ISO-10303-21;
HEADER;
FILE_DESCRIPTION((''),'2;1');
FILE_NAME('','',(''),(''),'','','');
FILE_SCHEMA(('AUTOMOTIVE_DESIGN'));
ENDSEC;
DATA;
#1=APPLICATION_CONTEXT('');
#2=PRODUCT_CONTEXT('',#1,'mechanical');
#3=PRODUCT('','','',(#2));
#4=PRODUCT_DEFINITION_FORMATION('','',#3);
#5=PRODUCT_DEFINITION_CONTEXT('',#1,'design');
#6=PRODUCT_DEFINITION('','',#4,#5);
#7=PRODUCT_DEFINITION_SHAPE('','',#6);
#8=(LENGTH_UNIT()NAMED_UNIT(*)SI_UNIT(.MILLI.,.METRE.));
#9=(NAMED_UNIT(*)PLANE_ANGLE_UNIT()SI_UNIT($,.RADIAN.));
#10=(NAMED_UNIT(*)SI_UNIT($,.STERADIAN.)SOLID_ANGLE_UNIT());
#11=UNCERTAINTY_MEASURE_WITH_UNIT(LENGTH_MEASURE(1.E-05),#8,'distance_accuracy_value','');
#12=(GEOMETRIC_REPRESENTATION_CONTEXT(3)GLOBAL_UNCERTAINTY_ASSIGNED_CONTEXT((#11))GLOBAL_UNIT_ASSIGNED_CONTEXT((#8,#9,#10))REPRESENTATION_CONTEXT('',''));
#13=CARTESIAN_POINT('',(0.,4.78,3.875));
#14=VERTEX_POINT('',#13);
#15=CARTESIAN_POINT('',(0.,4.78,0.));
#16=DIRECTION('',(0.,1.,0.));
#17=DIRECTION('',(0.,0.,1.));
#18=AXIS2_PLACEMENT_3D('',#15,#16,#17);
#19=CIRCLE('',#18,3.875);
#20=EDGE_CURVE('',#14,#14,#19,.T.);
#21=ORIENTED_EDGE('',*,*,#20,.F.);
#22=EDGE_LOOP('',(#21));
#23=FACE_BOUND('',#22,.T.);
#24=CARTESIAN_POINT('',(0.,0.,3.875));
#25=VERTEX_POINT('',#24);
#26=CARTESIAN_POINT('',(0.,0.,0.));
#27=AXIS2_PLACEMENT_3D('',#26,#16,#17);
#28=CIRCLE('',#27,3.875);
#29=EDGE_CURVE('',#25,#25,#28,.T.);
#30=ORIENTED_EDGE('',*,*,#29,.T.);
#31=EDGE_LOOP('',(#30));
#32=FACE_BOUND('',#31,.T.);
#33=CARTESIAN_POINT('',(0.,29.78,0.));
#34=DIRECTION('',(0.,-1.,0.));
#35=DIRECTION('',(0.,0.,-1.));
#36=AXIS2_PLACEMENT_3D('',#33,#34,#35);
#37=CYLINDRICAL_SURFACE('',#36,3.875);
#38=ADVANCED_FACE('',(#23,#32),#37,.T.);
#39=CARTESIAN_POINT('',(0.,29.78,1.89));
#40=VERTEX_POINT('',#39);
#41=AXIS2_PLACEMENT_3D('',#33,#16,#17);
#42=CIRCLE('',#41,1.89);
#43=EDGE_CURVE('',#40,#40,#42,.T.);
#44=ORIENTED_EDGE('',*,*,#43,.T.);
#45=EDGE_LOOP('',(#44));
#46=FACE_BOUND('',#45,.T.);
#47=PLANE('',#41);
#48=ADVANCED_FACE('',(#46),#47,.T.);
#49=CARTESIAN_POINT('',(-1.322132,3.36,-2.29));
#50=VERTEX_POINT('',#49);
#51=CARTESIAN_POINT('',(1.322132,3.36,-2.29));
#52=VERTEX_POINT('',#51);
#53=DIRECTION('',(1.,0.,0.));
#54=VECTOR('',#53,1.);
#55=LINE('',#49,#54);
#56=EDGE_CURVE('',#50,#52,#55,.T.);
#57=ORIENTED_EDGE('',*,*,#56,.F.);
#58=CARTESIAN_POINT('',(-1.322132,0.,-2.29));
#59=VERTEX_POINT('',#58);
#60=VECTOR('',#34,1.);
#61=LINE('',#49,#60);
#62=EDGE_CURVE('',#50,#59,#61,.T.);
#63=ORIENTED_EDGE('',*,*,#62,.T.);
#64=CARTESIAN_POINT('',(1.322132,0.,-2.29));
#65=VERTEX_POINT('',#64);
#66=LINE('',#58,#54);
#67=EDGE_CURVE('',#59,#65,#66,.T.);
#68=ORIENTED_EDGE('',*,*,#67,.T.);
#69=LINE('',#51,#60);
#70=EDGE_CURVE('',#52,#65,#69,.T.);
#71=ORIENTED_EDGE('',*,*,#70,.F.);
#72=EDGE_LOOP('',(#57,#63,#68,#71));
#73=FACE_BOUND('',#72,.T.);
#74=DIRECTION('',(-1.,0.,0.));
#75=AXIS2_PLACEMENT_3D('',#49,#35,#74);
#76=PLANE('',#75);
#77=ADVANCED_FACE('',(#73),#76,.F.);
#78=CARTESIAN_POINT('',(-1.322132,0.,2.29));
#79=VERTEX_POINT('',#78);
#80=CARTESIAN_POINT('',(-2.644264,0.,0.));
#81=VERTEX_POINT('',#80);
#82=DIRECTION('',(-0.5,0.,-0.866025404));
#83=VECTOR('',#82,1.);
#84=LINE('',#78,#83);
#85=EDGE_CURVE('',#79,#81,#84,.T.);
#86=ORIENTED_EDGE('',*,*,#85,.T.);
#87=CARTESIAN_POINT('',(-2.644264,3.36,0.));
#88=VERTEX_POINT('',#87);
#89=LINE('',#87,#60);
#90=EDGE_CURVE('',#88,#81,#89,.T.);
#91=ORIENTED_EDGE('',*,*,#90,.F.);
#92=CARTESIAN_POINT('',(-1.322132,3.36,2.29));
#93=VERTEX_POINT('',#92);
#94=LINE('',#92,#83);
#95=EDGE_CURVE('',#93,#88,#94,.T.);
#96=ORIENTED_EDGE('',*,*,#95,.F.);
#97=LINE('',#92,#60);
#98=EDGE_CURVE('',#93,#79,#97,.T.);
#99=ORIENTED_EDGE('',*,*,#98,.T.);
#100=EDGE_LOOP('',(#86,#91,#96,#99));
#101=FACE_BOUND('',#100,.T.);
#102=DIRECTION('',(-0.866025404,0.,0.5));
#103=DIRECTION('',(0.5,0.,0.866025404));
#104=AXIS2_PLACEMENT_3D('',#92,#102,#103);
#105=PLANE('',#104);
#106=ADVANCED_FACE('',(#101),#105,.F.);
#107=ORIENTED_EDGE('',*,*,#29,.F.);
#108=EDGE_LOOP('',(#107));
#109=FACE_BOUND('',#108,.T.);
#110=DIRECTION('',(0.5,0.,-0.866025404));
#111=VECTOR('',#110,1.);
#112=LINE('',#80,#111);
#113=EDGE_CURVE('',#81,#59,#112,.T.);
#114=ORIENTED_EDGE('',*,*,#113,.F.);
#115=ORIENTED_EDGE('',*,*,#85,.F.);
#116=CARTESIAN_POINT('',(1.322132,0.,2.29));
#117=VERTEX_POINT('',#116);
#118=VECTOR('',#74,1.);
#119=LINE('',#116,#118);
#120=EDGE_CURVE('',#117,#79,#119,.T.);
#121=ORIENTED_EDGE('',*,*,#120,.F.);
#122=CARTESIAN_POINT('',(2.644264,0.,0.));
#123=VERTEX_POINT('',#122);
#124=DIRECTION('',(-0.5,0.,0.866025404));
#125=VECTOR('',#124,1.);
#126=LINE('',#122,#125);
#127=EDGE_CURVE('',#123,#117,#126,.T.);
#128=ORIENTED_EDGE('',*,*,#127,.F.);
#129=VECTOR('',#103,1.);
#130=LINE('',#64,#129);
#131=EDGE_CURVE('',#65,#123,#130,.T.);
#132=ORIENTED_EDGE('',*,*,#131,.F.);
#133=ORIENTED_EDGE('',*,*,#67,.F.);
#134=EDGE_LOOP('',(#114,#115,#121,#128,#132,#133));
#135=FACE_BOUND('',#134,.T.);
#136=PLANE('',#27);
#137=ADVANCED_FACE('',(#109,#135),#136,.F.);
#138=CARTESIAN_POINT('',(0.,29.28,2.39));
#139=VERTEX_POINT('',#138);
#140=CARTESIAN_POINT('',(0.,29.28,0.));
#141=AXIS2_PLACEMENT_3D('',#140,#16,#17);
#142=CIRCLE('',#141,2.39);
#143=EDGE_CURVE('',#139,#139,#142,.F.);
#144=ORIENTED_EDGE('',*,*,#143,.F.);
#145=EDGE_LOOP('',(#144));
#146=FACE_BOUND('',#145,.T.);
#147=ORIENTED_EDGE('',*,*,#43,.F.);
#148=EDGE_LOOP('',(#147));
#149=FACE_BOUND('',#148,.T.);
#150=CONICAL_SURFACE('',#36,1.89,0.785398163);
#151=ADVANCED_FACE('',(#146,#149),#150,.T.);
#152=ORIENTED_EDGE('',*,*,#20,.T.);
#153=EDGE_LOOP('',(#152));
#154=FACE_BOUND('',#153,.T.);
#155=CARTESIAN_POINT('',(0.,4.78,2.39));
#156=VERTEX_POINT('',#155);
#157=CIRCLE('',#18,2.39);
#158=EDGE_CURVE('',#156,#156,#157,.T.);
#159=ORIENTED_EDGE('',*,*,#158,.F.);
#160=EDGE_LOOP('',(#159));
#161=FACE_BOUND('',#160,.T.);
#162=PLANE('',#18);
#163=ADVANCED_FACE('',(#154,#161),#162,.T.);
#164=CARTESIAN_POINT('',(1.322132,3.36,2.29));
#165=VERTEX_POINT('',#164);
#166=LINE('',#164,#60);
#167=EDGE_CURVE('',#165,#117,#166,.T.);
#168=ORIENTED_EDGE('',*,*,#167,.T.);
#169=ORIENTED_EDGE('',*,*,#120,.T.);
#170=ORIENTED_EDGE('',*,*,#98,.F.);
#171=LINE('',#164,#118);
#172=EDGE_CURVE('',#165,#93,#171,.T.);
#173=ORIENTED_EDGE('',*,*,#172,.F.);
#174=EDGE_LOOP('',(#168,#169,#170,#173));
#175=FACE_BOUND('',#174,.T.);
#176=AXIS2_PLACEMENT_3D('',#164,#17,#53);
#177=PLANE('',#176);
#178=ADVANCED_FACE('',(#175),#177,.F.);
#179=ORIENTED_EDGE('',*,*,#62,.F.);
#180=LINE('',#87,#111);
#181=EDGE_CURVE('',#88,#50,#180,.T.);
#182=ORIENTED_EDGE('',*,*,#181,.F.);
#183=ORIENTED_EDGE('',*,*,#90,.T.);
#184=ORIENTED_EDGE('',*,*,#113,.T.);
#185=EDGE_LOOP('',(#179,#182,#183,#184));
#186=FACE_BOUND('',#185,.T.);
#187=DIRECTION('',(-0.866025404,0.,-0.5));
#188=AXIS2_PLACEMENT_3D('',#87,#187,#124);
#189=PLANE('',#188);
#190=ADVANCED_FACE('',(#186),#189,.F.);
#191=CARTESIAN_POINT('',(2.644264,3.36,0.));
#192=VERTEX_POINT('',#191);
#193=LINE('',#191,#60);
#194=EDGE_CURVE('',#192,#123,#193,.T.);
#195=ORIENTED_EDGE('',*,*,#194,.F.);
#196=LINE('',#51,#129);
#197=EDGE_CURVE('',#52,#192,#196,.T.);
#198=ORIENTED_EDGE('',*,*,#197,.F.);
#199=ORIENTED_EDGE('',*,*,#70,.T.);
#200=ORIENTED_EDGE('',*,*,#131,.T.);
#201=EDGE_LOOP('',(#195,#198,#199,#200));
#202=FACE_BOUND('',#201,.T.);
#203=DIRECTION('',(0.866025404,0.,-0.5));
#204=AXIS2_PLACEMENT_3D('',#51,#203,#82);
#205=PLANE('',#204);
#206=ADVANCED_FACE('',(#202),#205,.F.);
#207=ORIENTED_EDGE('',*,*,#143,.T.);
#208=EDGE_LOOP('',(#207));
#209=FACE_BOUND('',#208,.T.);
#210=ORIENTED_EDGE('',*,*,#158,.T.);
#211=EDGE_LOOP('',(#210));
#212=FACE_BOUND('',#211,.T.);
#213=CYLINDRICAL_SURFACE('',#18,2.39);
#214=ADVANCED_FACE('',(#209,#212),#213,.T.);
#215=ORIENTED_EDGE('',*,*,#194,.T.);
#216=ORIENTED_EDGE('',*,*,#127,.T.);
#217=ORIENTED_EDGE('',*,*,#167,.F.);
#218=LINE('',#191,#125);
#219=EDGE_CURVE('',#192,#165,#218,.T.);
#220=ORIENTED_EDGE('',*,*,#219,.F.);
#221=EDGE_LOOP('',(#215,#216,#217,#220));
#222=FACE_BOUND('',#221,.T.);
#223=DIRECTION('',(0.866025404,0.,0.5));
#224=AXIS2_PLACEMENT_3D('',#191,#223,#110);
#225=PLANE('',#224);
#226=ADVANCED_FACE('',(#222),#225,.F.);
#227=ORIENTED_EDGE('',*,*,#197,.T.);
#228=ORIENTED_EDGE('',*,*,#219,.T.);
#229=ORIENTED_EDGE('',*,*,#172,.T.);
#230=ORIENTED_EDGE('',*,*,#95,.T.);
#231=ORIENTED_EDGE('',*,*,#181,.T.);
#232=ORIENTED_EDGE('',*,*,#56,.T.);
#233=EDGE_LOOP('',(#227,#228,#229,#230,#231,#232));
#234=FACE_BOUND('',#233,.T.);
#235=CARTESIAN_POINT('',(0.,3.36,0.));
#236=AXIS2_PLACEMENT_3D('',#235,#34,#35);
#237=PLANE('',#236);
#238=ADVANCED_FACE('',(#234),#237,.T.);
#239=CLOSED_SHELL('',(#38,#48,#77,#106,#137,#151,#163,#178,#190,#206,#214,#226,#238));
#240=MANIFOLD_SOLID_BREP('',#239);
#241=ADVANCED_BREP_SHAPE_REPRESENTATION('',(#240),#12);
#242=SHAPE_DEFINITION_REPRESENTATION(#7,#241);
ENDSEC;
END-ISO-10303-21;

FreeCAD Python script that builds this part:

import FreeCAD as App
import Part
import Sketcher

V = App.Vector
Q = App.Units.Quantity


def edges_at(feature, points):
    """Names of the edges that pass closest to the given points."""
    edges = feature.Shape.Edges
    near = lambda p: min(range(len(edges)), key=lambda i: edges[i].distToShape(Part.Vertex(*p))[0])
    return sorted({f"Edge{near(p) + 1}" for p in points})

doc = App.newDocument("Part")
body = doc.addObject("PartDesign::Body", "Body")

sketch1 = body.newObject("Sketcher::SketchObject", "Sketch")
sketch1.AttachmentSupport = (doc.getObject("XZ_Plane"), [""])
sketch1.MapMode = "FlatFace"
sketch1.addGeometry(Part.Circle(V(0, 0, 0), V(0, 0, 1), 3.9), False)
sketch1.addConstraint([
    Sketcher.Constraint("Coincident", 0, 3, -1, 1),
    Sketcher.Constraint("Diameter", 0, 7.75),
])
pad1 = body.newObject("PartDesign::Pad", "Pad")
pad1.Profile = sketch1
pad1.Length = 29.78
pad1.Reversed = True

sketch2 = body.newObject("Sketcher::SketchObject", "Sketch001")
sketch2.AttachmentSupport = (doc.getObject("XZ_Plane"), [""])
sketch2.MapMode = "FlatFace"
sketch2.AttachmentOffset = App.Placement(V(0, 0, -29.78), App.Rotation())
sketch2.addGeometry([
    Part.LineSegment(V(-8, -8, 0), V(-8, 8, 0)),
    Part.LineSegment(V(-8, 8, 0), V(8, 8, 0)),
    Part.LineSegment(V(8, 8, 0), V(8, -8, 0)),
    Part.LineSegment(V(8, -8, 0), V(-8, -8, 0)),
    Part.Circle(V(0, 0, 0), V(0, 0, 1), 2.4),
], False)
sketch2.addConstraint([
    Sketcher.Constraint("Coincident", 0, 2, 1, 1),
    Sketcher.Constraint("Coincident", 1, 2, 2, 1),
    Sketcher.Constraint("Coincident", 2, 2, 3, 1),
    Sketcher.Constraint("Coincident", 3, 2, 0, 1),
    Sketcher.Constraint("Vertical", 0),
    Sketcher.Constraint("Horizontal", 1),
    Sketcher.Constraint("Vertical", 2),
    Sketcher.Constraint("Horizontal", 3),
    Sketcher.Constraint("Coincident", 4, 3, -1, 1),
    Sketcher.Constraint("Symmetric", 0, 2, 2, 2, -1, 1),
    Sketcher.Constraint("Equal", 3, 0),
    Sketcher.Constraint("Diameter", 4, 4.78),
    Sketcher.Constraint("DistanceX", 1, 1, 1, 2, 16.096),
])
pocket1 = body.newObject("PartDesign::Pocket", "Pocket")
pocket1.Profile = sketch2
pocket1.Length = 25
pocket1.Reversed = True
doc.recompute()

chamfer = body.newObject("PartDesign::Chamfer", "Chamfer")
chamfer.Base = (pocket1, edges_at(pocket1, [(-2.39, 29.78, 0)]))
chamfer.Size = 0.5

sketch3 = body.newObject("Sketcher::SketchObject", "Sketch002")
sketch3.AttachmentSupport = (doc.getObject("XZ_Plane"), [""])
sketch3.MapMode = "FlatFace"
sketch3.addGeometry([
    Part.LineSegment(V(2.6, 0, 0), V(1.3, 2.3, 0)),
    Part.LineSegment(V(1.3, 2.3, 0), V(-1.3, 2.3, 0)),
    Part.LineSegment(V(-1.3, 2.3, 0), V(-2.6, 0, 0)),
    Part.LineSegment(V(-2.6, 0, 0), V(-1.3, -2.3, 0)),
    Part.LineSegment(V(-1.3, -2.3, 0), V(1.3, -2.3, 0)),
    Part.LineSegment(V(1.3, -2.3, 0), V(2.6, 0, 0)),
], False)
sketch3.addConstraint([
    Sketcher.Constraint("Coincident", 0, 2, 1, 1),
    Sketcher.Constraint("Coincident", 1, 2, 2, 1),
    Sketcher.Constraint("Coincident", 2, 2, 3, 1),
    Sketcher.Constraint("Coincident", 3, 2, 4, 1),
    Sketcher.Constraint("Coincident", 4, 2, 5, 1),
    Sketcher.Constraint("Coincident", 5, 2, 0, 1),
    Sketcher.Constraint("Horizontal", 1),
    Sketcher.Constraint("Horizontal", 4),
    Sketcher.Constraint("Symmetric", 0, 2, 3, 2, -1, 1),
    Sketcher.Constraint("Symmetric", 2, 2, 5, 2, -1, 1),
    Sketcher.Constraint("PointOnObject", 2, 2, -1),
    Sketcher.Constraint("Parallel", 2, 5),
    Sketcher.Constraint("Vertical", 1, 2, 3, 2),
    Sketcher.Constraint("Angle", 0, Q("120 deg")),
    Sketcher.Constraint("DistanceY", -1, 1, 0, 2, 2.29),
    Sketcher.Constraint("DistanceX", 1, 2, 1, 1, 2.644264),
])
pocket2 = body.newObject("PartDesign::Pocket", "Pocket001")
pocket2.Profile = sketch3
pocket2.Length = 3.36

doc.recompute()
